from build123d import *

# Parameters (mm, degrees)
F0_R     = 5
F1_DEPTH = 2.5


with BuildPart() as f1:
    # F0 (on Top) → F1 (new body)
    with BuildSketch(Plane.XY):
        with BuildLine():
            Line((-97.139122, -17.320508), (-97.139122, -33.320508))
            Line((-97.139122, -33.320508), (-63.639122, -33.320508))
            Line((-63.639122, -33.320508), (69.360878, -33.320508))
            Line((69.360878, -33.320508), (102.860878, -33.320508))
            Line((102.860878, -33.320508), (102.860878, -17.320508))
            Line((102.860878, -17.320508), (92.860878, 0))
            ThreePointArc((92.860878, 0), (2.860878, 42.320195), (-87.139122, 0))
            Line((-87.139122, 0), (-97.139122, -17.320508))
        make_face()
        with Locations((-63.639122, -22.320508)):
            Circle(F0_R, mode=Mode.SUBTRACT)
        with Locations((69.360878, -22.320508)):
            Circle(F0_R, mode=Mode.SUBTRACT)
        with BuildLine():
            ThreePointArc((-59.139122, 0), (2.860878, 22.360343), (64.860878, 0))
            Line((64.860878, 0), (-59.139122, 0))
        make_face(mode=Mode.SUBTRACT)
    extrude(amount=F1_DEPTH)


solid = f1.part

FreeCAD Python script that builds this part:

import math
import FreeCAD as App
import Part
import Sketcher

V = App.Vector
Q = App.Units.Quantity

doc = App.newDocument("Part")
body = doc.addObject("PartDesign::Body", "Body")

# Sketch on XY plane
sketch1 = body.newObject("Sketcher::SketchObject", "Sketch")
sketch1.AttachmentSupport = (doc.getObject("XY_Plane"), [""])
sketch1.MapMode = "FlatFace"
sketch1.addGeometry(Part.LineSegment(V(-97, -17, 0), V(-97, -33, 0)), False)
sketch1.addGeometry(Part.LineSegment(V(-97, -33, 0), V(103, -33, 0)), False)
sketch1.addGeometry(Part.LineSegment(V(103, -33, 0), V(103, -17, 0)), False)
sketch1.addGeometry(Part.LineSegment(V(103, -17, 0), V(93, 0, 0)), False)
sketch1.addGeometry(Part.ArcOfCircle(Part.Circle(V(3, -75, 0), V(0, 0, 1), 117), math.radians(40), math.radians(140)), False)
sketch1.addGeometry(Part.LineSegment(V(-87, 0, 0), V(-97, -17, 0)), False)
sketch1.addGeometry(Part.Circle(V(-64, -22, 0), V(0, 0, 1), 5), False)
sketch1.addGeometry(Part.Circle(V(69, -22, 0), V(0, 0, 1), 5), False)
sketch1.addGeometry(Part.LineSegment(V(65, 0, 0), V(-59, 0, 0)), False)
sketch1.addGeometry(Part.ArcOfCircle(Part.Circle(V(3, -75, 0), V(0, 0, 1), 97), math.radians(50), math.radians(130)), False)
sketch1.addConstraint(Sketcher.Constraint("Coincident", 0, 2, 1, 1))
sketch1.addConstraint(Sketcher.Constraint("Coincident", 1, 2, 2, 1))
sketch1.addConstraint(Sketcher.Constraint("Coincident", 2, 2, 3, 1))
sketch1.addConstraint(Sketcher.Constraint("Coincident", 3, 2, 4, 1))
sketch1.addConstraint(Sketcher.Constraint("Coincident", 4, 2, 5, 1))
sketch1.addConstraint(Sketcher.Constraint("Coincident", 5, 2, 0, 1))
sketch1.addConstraint(Sketcher.Constraint("Coincident", 8, 1, 9, 1))
sketch1.addConstraint(Sketcher.Constraint("Coincident", 9, 2, 8, 2))
sketch1.addConstraint(Sketcher.Constraint("Vertical", 0))
sketch1.addConstraint(Sketcher.Constraint("Horizontal", 1))
sketch1.addConstraint(Sketcher.Constraint("Vertical", 2))
sketch1.addConstraint(Sketcher.Constraint("Horizontal", 8))
sketch1.addConstraint(Sketcher.Constraint("Equal", 6, 7))
sketch1.addConstraint(Sketcher.Constraint("PointOnObject", 3, 2, -1))
sketch1.addConstraint(Sketcher.Constraint("PointOnObject", 4, 2, -1))
sketch1.addConstraint(Sketcher.Constraint("PointOnObject", 8, 1, -1))
sketch1.addConstraint(Sketcher.Constraint("Horizontal", 6, 3, 7, 3))
sketch1.addConstraint(Sketcher.Constraint("Horizontal", 2, 2, 5, 2))
sketch1.addConstraint(Sketcher.Constraint("Vertical", 4, 3, 9, 3))
sketch1.addConstraint(Sketcher.Constraint("Equal", 3, 5))
sketch1.addConstraint(Sketcher.Constraint("Diameter", 6, Q("10 mm")))
sketch1.addConstraint(Sketcher.Constraint("DistanceX", 1, 1, 1, 2, Q("200 mm")))
sketch1.addConstraint(Sketcher.Constraint("DistanceX", 8, 2, 8, 1, Q("124 mm")))
sketch1.addConstraint(Sketcher.Constraint("DistanceY", 0, 2, 0, 1, Q("16 mm")))
sketch1.addConstraint(Sketcher.Constraint("Angle", 3, Q("120 deg")))
sketch1.addConstraint(Sketcher.Constraint("Distance", 3, Q("20 mm")))
sketch1.addConstraint(Sketcher.Constraint("DistanceX", 6, 3, 7, 3, Q("133 mm")))
sketch1.addConstraint(Sketcher.Constraint("DistanceY", 0, 2, 6, 3, Q("11 mm")))
sketch1.addConstraint(Sketcher.Constraint("DistanceX", 6, 3, 4, 3, Q("66.5 mm")))
sketch1.addConstraint(Sketcher.Constraint("Radius", 4, Q("116.859089 mm")))
sketch1.addConstraint(Sketcher.Constraint("Radius", 9, Q("97.135919 mm")))
sketch1.addConstraint(Sketcher.Constraint("DistanceX", -1, 1, 4, 3, Q("2.860878 mm")))
pad1 = body.newObject("PartDesign::Pad", "Pad")
pad1.Profile = sketch1
pad1.Length = 2.5

doc.recompute()
